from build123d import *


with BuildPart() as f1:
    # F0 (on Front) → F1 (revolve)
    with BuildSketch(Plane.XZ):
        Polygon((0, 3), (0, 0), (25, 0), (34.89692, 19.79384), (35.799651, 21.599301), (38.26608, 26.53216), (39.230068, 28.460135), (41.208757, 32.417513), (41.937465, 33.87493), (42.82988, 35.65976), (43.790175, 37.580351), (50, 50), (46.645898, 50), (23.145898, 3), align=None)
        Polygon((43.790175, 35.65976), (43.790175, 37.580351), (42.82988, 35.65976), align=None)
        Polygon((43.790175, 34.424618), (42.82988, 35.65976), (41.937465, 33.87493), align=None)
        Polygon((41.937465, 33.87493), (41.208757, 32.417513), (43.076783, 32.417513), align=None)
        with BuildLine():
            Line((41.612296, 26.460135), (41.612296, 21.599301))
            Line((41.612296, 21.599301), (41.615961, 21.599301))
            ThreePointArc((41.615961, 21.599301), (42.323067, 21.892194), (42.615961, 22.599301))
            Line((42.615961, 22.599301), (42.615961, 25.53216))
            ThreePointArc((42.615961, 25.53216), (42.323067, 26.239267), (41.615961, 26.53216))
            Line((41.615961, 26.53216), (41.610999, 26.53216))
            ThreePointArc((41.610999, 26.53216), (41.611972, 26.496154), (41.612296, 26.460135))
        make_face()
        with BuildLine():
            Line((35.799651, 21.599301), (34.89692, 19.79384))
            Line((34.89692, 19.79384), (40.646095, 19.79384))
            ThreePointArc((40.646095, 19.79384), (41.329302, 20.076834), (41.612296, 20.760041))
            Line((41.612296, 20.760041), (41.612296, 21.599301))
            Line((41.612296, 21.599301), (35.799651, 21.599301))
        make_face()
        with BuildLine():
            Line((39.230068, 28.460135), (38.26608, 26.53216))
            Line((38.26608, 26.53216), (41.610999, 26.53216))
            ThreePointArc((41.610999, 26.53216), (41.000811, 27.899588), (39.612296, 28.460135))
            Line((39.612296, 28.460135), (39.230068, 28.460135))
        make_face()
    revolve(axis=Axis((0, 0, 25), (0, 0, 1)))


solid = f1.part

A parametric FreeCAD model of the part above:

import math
import FreeCAD as App
import Part
import Sketcher
Q = App.Units.Quantity

doc = App.newDocument("Part")
body = doc.addObject("PartDesign::Body", "Body")
body.AllowCompound = True

sketch1 = doc.addObject("Sketcher::SketchObject", "Sketch")
body.addObject(sketch1)
sketch1.AttachmentSupport = (doc.XZ_Plane, [""])
sketch1.MapMode = "FlatFace"
sketch1.addGeometry([
    Part.LineSegment(App.Vector(0, 3, 0), App.Vector(0, 0, 0)),
    Part.LineSegment(App.Vector(0, 0, 0), App.Vector(25, 0, 0)),
    Part.LineSegment(App.Vector(25, 0, 0), App.Vector(34.89692, 19.79384, 0)),
    Part.LineSegment(App.Vector(34.89692, 19.79384, 0), App.Vector(40.646095, 19.79384, 0)),
    Part.ArcOfCircle(Part.Circle(App.Vector(40.646094, 20.760042, 0), App.Vector(0, 0, 1), 0.966202), math.radians(-89.999943), math.radians(-0.000057)),
    Part.LineSegment(App.Vector(41.612296, 20.760041, 0), App.Vector(41.612296, 21.599301, 0)),
    Part.LineSegment(App.Vector(41.612296, 21.599301, 0), App.Vector(35.799651, 21.599301, 0)),
    Part.LineSegment(App.Vector(35.799651, 21.599301, 0), App.Vector(38.26608, 26.53216, 0)),
    Part.LineSegment(App.Vector(38.26608, 26.53216, 0), App.Vector(41.610999, 26.53216, 0)),
    Part.ArcOfCircle(Part.Circle(App.Vector(39.612295, 26.460134, 0), App.Vector(0, 0, 1), 2.000001), math.radians(2.063847), math.radians(89.999973)),
    Part.LineSegment(App.Vector(39.612296, 28.460135, 0), App.Vector(39.230068, 28.460135, 0)),
    Part.LineSegment(App.Vector(39.230068, 28.460135, 0), App.Vector(41.208757, 32.417513, 0)),
    Part.LineSegment(App.Vector(41.208757, 32.417513, 0), App.Vector(43.076783, 32.417513, 0)),
    Part.LineSegment(App.Vector(43.076783, 32.417513, 0), App.Vector(41.937465, 33.87493, 0)),
    Part.LineSegment(App.Vector(41.937465, 33.87493, 0), App.Vector(43.790175, 34.424618, 0)),
    Part.LineSegment(App.Vector(43.790175, 34.424618, 0), App.Vector(42.82988, 35.65976, 0)),
    Part.LineSegment(App.Vector(42.82988, 35.65976, 0), App.Vector(43.790175, 35.65976, 0)),
    Part.LineSegment(App.Vector(43.790175, 35.65976, 0), App.Vector(43.790175, 37.580351, 0)),
    Part.LineSegment(App.Vector(43.790175, 37.580351, 0), App.Vector(50, 50, 0)),
    Part.LineSegment(App.Vector(50, 50, 0), App.Vector(46.645898, 50, 0)),
    Part.LineSegment(App.Vector(46.645898, 50, 0), App.Vector(23.145898, 3, 0)),
    Part.LineSegment(App.Vector(23.145898, 3, 0), App.Vector(0, 3, 0)),
    Part.LineSegment(App.Vector(41.612296, 26.460135, 0), App.Vector(41.612296, 21.599301, 0)),
    Part.LineSegment(App.Vector(41.612296, 21.599301, 0), App.Vector(41.615961, 21.599301, 0)),
    Part.ArcOfCircle(Part.Circle(App.Vector(41.61596, 22.599302, 0), App.Vector(0, 0, 1), 1.000001), math.radians(-89.999945), math.radians(-0.000055)),
    Part.LineSegment(App.Vector(42.615961, 22.599301, 0), App.Vector(42.615961, 25.53216, 0)),
    Part.ArcOfCircle(Part.Circle(App.Vector(41.61596, 25.532159, 0), App.Vector(0, 0, 1), 1.000001), math.radians(0.000055), math.radians(89.999945)),
    Part.LineSegment(App.Vector(41.615961, 26.53216, 0), App.Vector(41.610999, 26.53216, 0)),
    Part.ArcOfCircle(Part.Circle(App.Vector(39.613577, 26.460167, 0), App.Vector(0, 0, 1), 1.998719), math.radians(-0.000917), math.radians(2.064217)),
], False)
sketch1.addConstraint([
    Sketcher.Constraint("Coincident", 0, 2, 1, 1),
    Sketcher.Constraint("Coincident", 1, 2, 2, 1),
    Sketcher.Constraint("Coincident", 2, 2, 3, 1),
    Sketcher.Constraint("Coincident", 3, 2, 4, 1),
    Sketcher.Constraint("Coincident", 4, 2, 5, 1),
    Sketcher.Constraint("Coincident", 5, 2, 6, 1),
    Sketcher.Constraint("Coincident", 6, 2, 7, 1),
    Sketcher.Constraint("Coincident", 7, 2, 8, 1),
    Sketcher.Constraint("Coincident", 8, 2, 9, 1),
    Sketcher.Constraint("Coincident", 9, 2, 10, 1),
    Sketcher.Constraint("Coincident", 10, 2, 11, 1),
    Sketcher.Constraint("Coincident", 11, 2, 12, 1),
    Sketcher.Constraint("Coincident", 12, 2, 13, 1),
    Sketcher.Constraint("Coincident", 13, 2, 14, 1),
    Sketcher.Constraint("Coincident", 14, 2, 15, 1),
    Sketcher.Constraint("Coincident", 15, 2, 16, 1),
    Sketcher.Constraint("Coincident", 16, 2, 17, 1),
    Sketcher.Constraint("Coincident", 17, 2, 18, 1),
    Sketcher.Constraint("Coincident", 18, 2, 19, 1),
    Sketcher.Constraint("Coincident", 19, 2, 20, 1),
    Sketcher.Constraint("Coincident", 20, 2, 21, 1),
    Sketcher.Constraint("Coincident", 21, 2, 0, 1),
    Sketcher.Constraint("Coincident", 22, 2, 23, 1),
    Sketcher.Constraint("Coincident", 23, 2, 24, 1),
    Sketcher.Constraint("Coincident", 24, 2, 25, 1),
    Sketcher.Constraint("Coincident", 25, 2, 26, 1),
    Sketcher.Constraint("Coincident", 26, 2, 27, 1),
    Sketcher.Constraint("Coincident", 27, 2, 28, 2),
    Sketcher.Constraint("Coincident", 28, 1, 22, 1),
    Sketcher.Constraint("Vertical", 0),
    Sketcher.Constraint("Horizontal", 1),
    Sketcher.Constraint("Horizontal", 3),
    Sketcher.Constraint("Vertical", 5),
    Sketcher.Constraint("Horizontal", 6),
    Sketcher.Constraint("Horizontal", 8),
    Sketcher.Constraint("Horizontal", 10),
    Sketcher.Constraint("Horizontal", 12),
    Sketcher.Constraint("Horizontal", 16),
    Sketcher.Constraint("Vertical", 17),
    Sketcher.Constraint("Horizontal", 19),
    Sketcher.Constraint("Horizontal", 21),
    Sketcher.Constraint("Vertical", 22),
    Sketcher.Constraint("Horizontal", 23),
    Sketcher.Constraint("Vertical", 25),
    Sketcher.Constraint("Horizontal", 27),
    Sketcher.Constraint("Coincident", 0, 2, -1, 1),
    Sketcher.Constraint("Coincident", 22, 2, 5, 2),
    Sketcher.Constraint("Coincident", 27, 2, 8, 2),
    Sketcher.Constraint("Radius", 9, Q("2.000001 mm")),
    Sketcher.Constraint("Radius", 24, Q("1.000001 mm")),
    Sketcher.Constraint("Radius", 26, Q("1.000001 mm")),
    Sketcher.Constraint("DistanceX", 1, 1, 1, 2, Q("25 mm")),
    Sketcher.Constraint("DistanceY", 0, 2, 0, 1, Q("3 mm")),
    Sketcher.Constraint("DistanceX", -1, 1, 18, 2, Q("50 mm")),
    Sketcher.Constraint("DistanceY", -1, 1, 18, 2, Q("50 mm")),
    Sketcher.Constraint("DistanceX", 23, 2, 24, 2, Q("1 mm")),
    Sketcher.Constraint("DistanceY", 23, 2, 24, 2, Q("1 mm")),
    Sketcher.Constraint("DistanceY", 25, 2, 8, 2, Q("1 mm")),
    Sketcher.Constraint("DistanceX", 26, 2, 25, 2, Q("1 mm")),
    Sketcher.Constraint("Radius", 4, Q("0.966202 mm")),
    Sketcher.Constraint("Radius", 28, Q("1.998719 mm")),
    Sketcher.Constraint("DistanceX", 19, 2, 19, 1, Q("3.354102 mm")),
    Sketcher.Constraint("DistanceX", -1, 1, 8, 2, Q("41.610999 mm")),
    Sketcher.Constraint("DistanceX", 8, 1, 8, 2, Q("3.344919 mm")),
    Sketcher.Constraint("DistanceX", 27, 2, 27, 1, Q("0.004962 mm")),
    Sketcher.Constraint("DistanceY", 5, 1, 5, 2, Q("0.83926 mm")),
    Sketcher.Constraint("DistanceY", 17, 1, 17, 2, Q("1.920591 mm")),
    Sketcher.Constraint("DistanceY", 25, 1, 25, 2, Q("2.932859 mm")),
    Sketcher.Constraint("DistanceY", -1, 1, 24, 3, Q("22.599302 mm")),
    Sketcher.Constraint("DistanceX", 9, 3, 4, 3, Q("1.033799 mm")),
    Sketcher.Constraint("DistanceX", 3, 2, 4, 2, Q("0.966201 mm")),
    Sketcher.Constraint("DistanceY", 3, 2, 4, 2, Q("0.966201 mm")),
    Sketcher.Constraint("Distance", 18, Q("13.88559 mm")),
    Sketcher.Constraint("DistanceX", 3, 1, 3, 2, Q("5.749175 mm")),
    Sketcher.Constraint("DistanceX", 6, 2, 6, 1, Q("5.812645 mm")),
    Sketcher.Constraint("DistanceX", 10, 2, 10, 1, Q("0.382228 mm")),
    Sketcher.Constraint("DistanceX", 12, 1, 12, 2, Q("1.868026 mm")),
    Sketcher.Constraint("DistanceX", 16, 1, 16, 2, Q("0.960295 mm")),
    Sketcher.Constraint("DistanceX", 21, 2, 21, 1, Q("23.145898 mm")),
    Sketcher.Constraint("DistanceX", 23, 1, 23, 2, Q("0.003665 mm")),
    Sketcher.Constraint("DistanceY", 22, 2, 22, 1, Q("4.860834 mm")),
    Sketcher.Constraint("DistanceX", -1, 1, 10, 2, Q("39.230068 mm")),
    Sketcher.Constraint("DistanceY", -1, 1, 13, 2, Q("33.87493 mm")),
    Sketcher.Constraint("DistanceY", -1, 1, 14, 2, Q("34.424618 mm")),
    Sketcher.Constraint("DistanceX", -1, 1, 15, 2, Q("42.82988 mm")),
    Sketcher.Constraint("DistanceX", 9, 2, 11, 2, Q("1.596461 mm")),
    Sketcher.Constraint("DistanceY", 9, 2, 11, 2, Q("3.957378 mm")),
    Sketcher.Constraint("DistanceX", 11, 2, 13, 2, Q("0.728708 mm")),
    Sketcher.Constraint("DistanceX", 13, 2, 14, 2, Q("1.85271 mm")),
])
revolution = doc.addObject("PartDesign::Revolution", "Revolution")
body.addObject(revolution)
revolution.Profile = sketch1
revolution.ReferenceAxis = (sketch1, ["V_Axis"])
revolution.Angle = 360

doc.recompute()
